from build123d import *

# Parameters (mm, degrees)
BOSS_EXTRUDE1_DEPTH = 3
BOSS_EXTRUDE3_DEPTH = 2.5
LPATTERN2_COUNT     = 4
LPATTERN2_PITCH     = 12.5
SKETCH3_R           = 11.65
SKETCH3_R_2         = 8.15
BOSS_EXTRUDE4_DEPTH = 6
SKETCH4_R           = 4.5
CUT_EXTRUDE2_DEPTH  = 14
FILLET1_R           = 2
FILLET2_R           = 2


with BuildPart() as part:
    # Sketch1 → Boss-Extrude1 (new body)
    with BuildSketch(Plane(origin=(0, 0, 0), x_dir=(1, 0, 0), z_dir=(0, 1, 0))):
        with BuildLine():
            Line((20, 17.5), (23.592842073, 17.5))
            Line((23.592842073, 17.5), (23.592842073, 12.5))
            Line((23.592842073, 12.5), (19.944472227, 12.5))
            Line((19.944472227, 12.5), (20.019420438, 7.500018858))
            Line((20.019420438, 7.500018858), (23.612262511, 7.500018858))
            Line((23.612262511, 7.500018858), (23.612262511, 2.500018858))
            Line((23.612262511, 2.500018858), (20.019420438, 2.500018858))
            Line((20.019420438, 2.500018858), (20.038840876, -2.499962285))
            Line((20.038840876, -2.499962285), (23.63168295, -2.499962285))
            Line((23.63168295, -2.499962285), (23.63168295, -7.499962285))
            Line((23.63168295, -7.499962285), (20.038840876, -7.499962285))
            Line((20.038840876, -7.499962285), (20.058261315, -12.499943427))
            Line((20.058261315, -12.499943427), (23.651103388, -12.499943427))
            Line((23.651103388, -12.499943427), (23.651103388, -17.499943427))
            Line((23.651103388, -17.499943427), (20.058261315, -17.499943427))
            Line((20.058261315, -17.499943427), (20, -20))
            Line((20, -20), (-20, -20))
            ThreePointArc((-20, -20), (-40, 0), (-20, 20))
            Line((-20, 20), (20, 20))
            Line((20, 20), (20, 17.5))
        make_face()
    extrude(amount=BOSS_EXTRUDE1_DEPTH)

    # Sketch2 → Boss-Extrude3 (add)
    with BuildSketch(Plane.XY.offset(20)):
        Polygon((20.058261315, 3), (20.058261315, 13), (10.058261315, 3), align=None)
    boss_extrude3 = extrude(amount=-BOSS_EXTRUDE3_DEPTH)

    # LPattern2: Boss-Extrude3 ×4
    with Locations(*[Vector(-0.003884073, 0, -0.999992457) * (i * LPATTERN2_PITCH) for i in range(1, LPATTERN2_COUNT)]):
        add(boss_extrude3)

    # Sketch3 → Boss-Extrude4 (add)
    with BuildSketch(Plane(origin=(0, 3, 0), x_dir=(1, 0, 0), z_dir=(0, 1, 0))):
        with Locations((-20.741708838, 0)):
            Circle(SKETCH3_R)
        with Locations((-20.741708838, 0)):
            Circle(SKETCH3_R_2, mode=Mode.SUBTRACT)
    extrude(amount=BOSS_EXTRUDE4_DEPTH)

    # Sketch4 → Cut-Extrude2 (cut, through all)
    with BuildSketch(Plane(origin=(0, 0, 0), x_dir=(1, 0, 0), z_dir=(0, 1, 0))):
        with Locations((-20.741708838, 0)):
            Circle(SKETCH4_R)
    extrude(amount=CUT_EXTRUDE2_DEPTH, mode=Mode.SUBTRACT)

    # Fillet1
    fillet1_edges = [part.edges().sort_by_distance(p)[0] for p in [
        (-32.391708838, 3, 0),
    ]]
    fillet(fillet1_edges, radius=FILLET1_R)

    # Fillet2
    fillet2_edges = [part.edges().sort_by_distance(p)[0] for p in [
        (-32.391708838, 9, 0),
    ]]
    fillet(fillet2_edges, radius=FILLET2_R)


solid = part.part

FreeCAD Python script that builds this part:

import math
import FreeCAD as App
import Part
import Sketcher

V = App.Vector
Q = App.Units.Quantity


def edges_at(feature, points):
    """Names of the edges that pass closest to the given points."""
    edges = feature.Shape.Edges
    near = lambda p: min(range(len(edges)), key=lambda i: edges[i].distToShape(Part.Vertex(*p))[0])
    return sorted({f"Edge{near(p) + 1}" for p in points})

doc = App.newDocument("Part")
body = doc.addObject("PartDesign::Body", "Body")

# Sketch on XZ plane
sketch1 = doc.addObject("Sketcher::SketchObject", "Sketch")
body.addObject(sketch1)
sketch1.AttachmentSupport = (doc.XZ_Plane, [""])
sketch1.MapMode = "FlatFace"
sketch1.addGeometry([
    Part.LineSegment(V(23.6, -17.5, 0), V(20, -17.5, 0)),  # 0
    Part.LineSegment(V(20, -17.5, 0), V(20, -20, 0)),  # 1
    Part.LineSegment(V(20, -20, 0), V(-20, -20, 0)),  # 2
    Part.ArcOfCircle(Part.Circle(V(-20, 0, 0), V(0, 0, 1), 20), math.radians(90), math.radians(270)),  # 3
    Part.LineSegment(V(-20, 20, 0), V(20, 20, 0)),  # 4
    Part.LineSegment(V(20, 20, 0), V(20.1, 17.5, 0)),  # 5
    Part.LineSegment(V(20.1, 17.5, 0), V(23.7, 17.5, 0)),  # 6
    Part.LineSegment(V(23.7, 17.5, 0), V(23.7, 12.5, 0)),  # 7
    Part.LineSegment(V(23.7, 12.5, 0), V(20.1, 12.5, 0)),  # 8
    Part.LineSegment(V(20.1, 12.5, 0), V(20, 7.5, 0)),  # 9
    Part.LineSegment(V(20, 7.5, 0), V(23.6, 7.5, 0)),  # 10
    Part.LineSegment(V(23.6, 7.5, 0), V(23.6, 2.5, 0)),  # 11
    Part.LineSegment(V(23.6, 2.5, 0), V(20, 2.5, 0)),  # 12
    Part.LineSegment(V(20, 2.5, 0), V(20, -2.5, 0)),  # 13
    Part.LineSegment(V(20, -2.5, 0), V(23.6, -2.5, 0)),  # 14
    Part.LineSegment(V(23.6, -2.5, 0), V(23.6, -7.5, 0)),  # 15
    Part.LineSegment(V(23.6, -7.5, 0), V(20, -7.5, 0)),  # 16
    Part.LineSegment(V(20, -7.5, 0), V(19.9, -12.5, 0)),  # 17
    Part.LineSegment(V(19.9, -12.5, 0), V(23.6, -12.5, 0)),  # 18
    Part.LineSegment(V(23.6, -12.5, 0), V(23.6, -17.5, 0)),  # 19
], False)
sketch1.addConstraint([
    Sketcher.Constraint("Coincident", 0, 2, 1, 1),
    Sketcher.Constraint("Coincident", 1, 2, 2, 1),
    Sketcher.Constraint("Tangent", 2, 2, 3, 2),
    Sketcher.Constraint("Tangent", 3, 1, 4, 1),
    Sketcher.Constraint("Coincident", 4, 2, 5, 1),
    Sketcher.Constraint("Coincident", 5, 2, 6, 1),
    Sketcher.Constraint("Coincident", 6, 2, 7, 1),
    Sketcher.Constraint("Coincident", 7, 2, 8, 1),
    Sketcher.Constraint("Coincident", 8, 2, 9, 1),
    Sketcher.Constraint("Coincident", 9, 2, 10, 1),
    Sketcher.Constraint("Coincident", 10, 2, 11, 1),
    Sketcher.Constraint("Coincident", 11, 2, 12, 1),
    Sketcher.Constraint("Coincident", 12, 2, 13, 1),
    Sketcher.Constraint("Coincident", 13, 2, 14, 1),
    Sketcher.Constraint("Coincident", 14, 2, 15, 1),
    Sketcher.Constraint("Coincident", 15, 2, 16, 1),
    Sketcher.Constraint("Coincident", 16, 2, 17, 1),
    Sketcher.Constraint("Coincident", 17, 2, 18, 1),
    Sketcher.Constraint("Coincident", 18, 2, 19, 1),
    Sketcher.Constraint("Coincident", 19, 2, 0, 1),
    Sketcher.Constraint("Horizontal", 0),
    Sketcher.Constraint("Vertical", 1),
    Sketcher.Constraint("Horizontal", 2),
    Sketcher.Constraint("Horizontal", 4),
    Sketcher.Constraint("Horizontal", 6),
    Sketcher.Constraint("Vertical", 7),
    Sketcher.Constraint("Horizontal", 8),
    Sketcher.Constraint("Horizontal", 10),
    Sketcher.Constraint("Vertical", 11),
    Sketcher.Constraint("Horizontal", 12),
    Sketcher.Constraint("Horizontal", 14),
    Sketcher.Constraint("Vertical", 15),
    Sketcher.Constraint("Horizontal", 16),
    Sketcher.Constraint("Horizontal", 18),
    Sketcher.Constraint("Vertical", 19),
    Sketcher.Constraint("Symmetric", 1, 2, 3, 1, -1, 1),
    Sketcher.Constraint("Parallel", 9, 13),
    Sketcher.Constraint("Vertical", 1, 2, 4, 2),
    Sketcher.Constraint("Vertical", 5, 2, 8, 2),
    Sketcher.Constraint("Vertical", 9, 2, 12, 2),
    Sketcher.Constraint("Vertical", 13, 2, 16, 2),
    Sketcher.Constraint("Equal", 0, 6),
    Sketcher.Constraint("Equal", 8, 10),
    Sketcher.Constraint("Equal", 12, 14),
    Sketcher.Constraint("Equal", 7, 11),
    Sketcher.Constraint("Equal", 11, 15),
    Sketcher.Constraint("Equal", 15, 19),
    Sketcher.Constraint("Equal", 9, 13),
    Sketcher.Constraint("Radius", 3, Q("20 mm")),
    Sketcher.Constraint("DistanceX", 2, 2, 2, 1, Q("40 mm")),
    Sketcher.Constraint("DistanceY", 7, 2, 7, 1, Q("5 mm")),
    Sketcher.Constraint("DistanceY", 1, 2, 1, 1, Q("2.5 mm")),
    Sketcher.Constraint("DistanceX", 18, 1, 18, 2, Q("3.64837 mm")),
    Sketcher.Constraint("Distance", 9, Q("5.000019 mm")),
    Sketcher.Constraint("DistanceX", 0, 2, 0, 1, Q("3.592842 mm")),
    Sketcher.Constraint("DistanceX", -1, 1, 5, 2, Q("20.058261 mm")),
    Sketcher.Constraint("DistanceX", -1, 1, 9, 2, Q("20.038841 mm")),
    Sketcher.Constraint("DistanceY", 13, 2, -1, 1, Q("2.500019 mm")),
])
pad1 = doc.addObject("PartDesign::Pad", "Pad")
body.addObject(pad1)
pad1.Profile = sketch1
pad1.Length = 3
pad1.Reversed = True

# Sketch on XY plane
sketch2 = doc.addObject("Sketcher::SketchObject", "Sketch001")
body.addObject(sketch2)
sketch2.AttachmentSupport = (doc.XY_Plane, [""])
sketch2.MapMode = "FlatFace"
sketch2.AttachmentOffset = App.Placement(V(0, 0, 20), App.Rotation())
sketch2.addGeometry([
    Part.LineSegment(V(20, 3, 0), V(20, 13, 0)),
    Part.LineSegment(V(20, 13, 0), V(10, 3, 0)),
    Part.LineSegment(V(10, 3, 0), V(20, 3, 0)),
], False)
sketch2.addConstraint([
    Sketcher.Constraint("Coincident", 0, 2, 1, 1),
    Sketcher.Constraint("Coincident", 1, 2, 2, 1),
    Sketcher.Constraint("Coincident", 2, 2, 0, 1),
    Sketcher.Constraint("Vertical", 0),
    Sketcher.Constraint("Horizontal", 2),
    Sketcher.Constraint("Equal", 2, 0),
    Sketcher.Constraint("DistanceX", 2, 1, 2, 2, Q("10 mm")),
    Sketcher.Constraint("DistanceY", -1, 1, 0, 2, Q("13 mm")),
    Sketcher.Constraint("DistanceX", -1, 1, 0, 2, Q("20.058261 mm")),
])
pad2 = doc.addObject("PartDesign::Pad", "Pad001")
body.addObject(pad2)
pad2.Profile = sketch2
pad2.Length = 2.5
pad2.Reversed = True
doc.recompute()

datumline = doc.addObject("PartDesign::Line", "DatumLine")
body.addObject(datumline)
datumline.Placement = App.Placement(V(0, 0, 0), App.Rotation(V(0, 0, 1), V(-0.003884073, 0, -0.999992457)))
linearpattern = doc.addObject("PartDesign::LinearPattern", "LinearPattern")
body.addObject(linearpattern)
linearpattern.Originals = [pad2]
linearpattern.Direction = (datumline, [""])
linearpattern.Mode = "offset"
linearpattern.Offset = 12.5
linearpattern.Occurrences = 4
body.Tip = linearpattern

# Sketch on XZ plane
sketch3 = doc.addObject("Sketcher::SketchObject", "Sketch002")
body.addObject(sketch3)
sketch3.AttachmentSupport = (doc.XZ_Plane, [""])
sketch3.MapMode = "FlatFace"
sketch3.AttachmentOffset = App.Placement(V(0, 0, -3), App.Rotation())
sketch3.addGeometry([
    Part.Circle(V(-21, 0, 0), V(0, 0, 1), 12),
    Part.Circle(V(-21, 0, 0), V(0, 0, 1), 8),
], False)
sketch3.addConstraint([
    Sketcher.Constraint("Coincident", 1, 3, 0, 3),
    Sketcher.Constraint("PointOnObject", 0, 3, -1),
    Sketcher.Constraint("Diameter", 0, Q("23.3 mm")),
    Sketcher.Constraint("Diameter", 1, Q("16.3 mm")),
    Sketcher.Constraint("DistanceX", 0, 3, -1, 1, Q("20.741709 mm")),
])
pad3 = doc.addObject("PartDesign::Pad", "Pad002")
body.addObject(pad3)
pad3.Profile = sketch3
pad3.Length = 6
pad3.Reversed = True

# Sketch on XZ plane
sketch4 = doc.addObject("Sketcher::SketchObject", "Sketch003")
body.addObject(sketch4)
sketch4.AttachmentSupport = (doc.XZ_Plane, [""])
sketch4.MapMode = "FlatFace"
sketch4.addGeometry(Part.Circle(V(-20.7, 0, 0), V(0, 0, 1), 4.5), False)
sketch4.addConstraint([
    Sketcher.Constraint("PointOnObject", 0, 3, -1),
    Sketcher.Constraint("Diameter", 0, Q("9 mm")),
    Sketcher.Constraint("DistanceX", 0, 3, -1, 1, Q("20.741709 mm")),
])
pocket1 = doc.addObject("PartDesign::Pocket", "Pocket")
body.addObject(pocket1)
pocket1.Profile = sketch4
pocket1.Type = "ThroughAll"
doc.recompute()

fillet = doc.addObject("PartDesign::Fillet", "Fillet")
body.addObject(fillet)
fillet.Base = (pocket1, edges_at(pocket1, [(-32.392, 3, 0)]))
fillet.Radius = 2
doc.recompute()

fillet2 = doc.addObject("PartDesign::Fillet", "Fillet001")
body.addObject(fillet2)
fillet2.Base = (fillet, edges_at(fillet, [(-32.392, 9, 0)]))
fillet2.Radius = 2

doc.recompute()
